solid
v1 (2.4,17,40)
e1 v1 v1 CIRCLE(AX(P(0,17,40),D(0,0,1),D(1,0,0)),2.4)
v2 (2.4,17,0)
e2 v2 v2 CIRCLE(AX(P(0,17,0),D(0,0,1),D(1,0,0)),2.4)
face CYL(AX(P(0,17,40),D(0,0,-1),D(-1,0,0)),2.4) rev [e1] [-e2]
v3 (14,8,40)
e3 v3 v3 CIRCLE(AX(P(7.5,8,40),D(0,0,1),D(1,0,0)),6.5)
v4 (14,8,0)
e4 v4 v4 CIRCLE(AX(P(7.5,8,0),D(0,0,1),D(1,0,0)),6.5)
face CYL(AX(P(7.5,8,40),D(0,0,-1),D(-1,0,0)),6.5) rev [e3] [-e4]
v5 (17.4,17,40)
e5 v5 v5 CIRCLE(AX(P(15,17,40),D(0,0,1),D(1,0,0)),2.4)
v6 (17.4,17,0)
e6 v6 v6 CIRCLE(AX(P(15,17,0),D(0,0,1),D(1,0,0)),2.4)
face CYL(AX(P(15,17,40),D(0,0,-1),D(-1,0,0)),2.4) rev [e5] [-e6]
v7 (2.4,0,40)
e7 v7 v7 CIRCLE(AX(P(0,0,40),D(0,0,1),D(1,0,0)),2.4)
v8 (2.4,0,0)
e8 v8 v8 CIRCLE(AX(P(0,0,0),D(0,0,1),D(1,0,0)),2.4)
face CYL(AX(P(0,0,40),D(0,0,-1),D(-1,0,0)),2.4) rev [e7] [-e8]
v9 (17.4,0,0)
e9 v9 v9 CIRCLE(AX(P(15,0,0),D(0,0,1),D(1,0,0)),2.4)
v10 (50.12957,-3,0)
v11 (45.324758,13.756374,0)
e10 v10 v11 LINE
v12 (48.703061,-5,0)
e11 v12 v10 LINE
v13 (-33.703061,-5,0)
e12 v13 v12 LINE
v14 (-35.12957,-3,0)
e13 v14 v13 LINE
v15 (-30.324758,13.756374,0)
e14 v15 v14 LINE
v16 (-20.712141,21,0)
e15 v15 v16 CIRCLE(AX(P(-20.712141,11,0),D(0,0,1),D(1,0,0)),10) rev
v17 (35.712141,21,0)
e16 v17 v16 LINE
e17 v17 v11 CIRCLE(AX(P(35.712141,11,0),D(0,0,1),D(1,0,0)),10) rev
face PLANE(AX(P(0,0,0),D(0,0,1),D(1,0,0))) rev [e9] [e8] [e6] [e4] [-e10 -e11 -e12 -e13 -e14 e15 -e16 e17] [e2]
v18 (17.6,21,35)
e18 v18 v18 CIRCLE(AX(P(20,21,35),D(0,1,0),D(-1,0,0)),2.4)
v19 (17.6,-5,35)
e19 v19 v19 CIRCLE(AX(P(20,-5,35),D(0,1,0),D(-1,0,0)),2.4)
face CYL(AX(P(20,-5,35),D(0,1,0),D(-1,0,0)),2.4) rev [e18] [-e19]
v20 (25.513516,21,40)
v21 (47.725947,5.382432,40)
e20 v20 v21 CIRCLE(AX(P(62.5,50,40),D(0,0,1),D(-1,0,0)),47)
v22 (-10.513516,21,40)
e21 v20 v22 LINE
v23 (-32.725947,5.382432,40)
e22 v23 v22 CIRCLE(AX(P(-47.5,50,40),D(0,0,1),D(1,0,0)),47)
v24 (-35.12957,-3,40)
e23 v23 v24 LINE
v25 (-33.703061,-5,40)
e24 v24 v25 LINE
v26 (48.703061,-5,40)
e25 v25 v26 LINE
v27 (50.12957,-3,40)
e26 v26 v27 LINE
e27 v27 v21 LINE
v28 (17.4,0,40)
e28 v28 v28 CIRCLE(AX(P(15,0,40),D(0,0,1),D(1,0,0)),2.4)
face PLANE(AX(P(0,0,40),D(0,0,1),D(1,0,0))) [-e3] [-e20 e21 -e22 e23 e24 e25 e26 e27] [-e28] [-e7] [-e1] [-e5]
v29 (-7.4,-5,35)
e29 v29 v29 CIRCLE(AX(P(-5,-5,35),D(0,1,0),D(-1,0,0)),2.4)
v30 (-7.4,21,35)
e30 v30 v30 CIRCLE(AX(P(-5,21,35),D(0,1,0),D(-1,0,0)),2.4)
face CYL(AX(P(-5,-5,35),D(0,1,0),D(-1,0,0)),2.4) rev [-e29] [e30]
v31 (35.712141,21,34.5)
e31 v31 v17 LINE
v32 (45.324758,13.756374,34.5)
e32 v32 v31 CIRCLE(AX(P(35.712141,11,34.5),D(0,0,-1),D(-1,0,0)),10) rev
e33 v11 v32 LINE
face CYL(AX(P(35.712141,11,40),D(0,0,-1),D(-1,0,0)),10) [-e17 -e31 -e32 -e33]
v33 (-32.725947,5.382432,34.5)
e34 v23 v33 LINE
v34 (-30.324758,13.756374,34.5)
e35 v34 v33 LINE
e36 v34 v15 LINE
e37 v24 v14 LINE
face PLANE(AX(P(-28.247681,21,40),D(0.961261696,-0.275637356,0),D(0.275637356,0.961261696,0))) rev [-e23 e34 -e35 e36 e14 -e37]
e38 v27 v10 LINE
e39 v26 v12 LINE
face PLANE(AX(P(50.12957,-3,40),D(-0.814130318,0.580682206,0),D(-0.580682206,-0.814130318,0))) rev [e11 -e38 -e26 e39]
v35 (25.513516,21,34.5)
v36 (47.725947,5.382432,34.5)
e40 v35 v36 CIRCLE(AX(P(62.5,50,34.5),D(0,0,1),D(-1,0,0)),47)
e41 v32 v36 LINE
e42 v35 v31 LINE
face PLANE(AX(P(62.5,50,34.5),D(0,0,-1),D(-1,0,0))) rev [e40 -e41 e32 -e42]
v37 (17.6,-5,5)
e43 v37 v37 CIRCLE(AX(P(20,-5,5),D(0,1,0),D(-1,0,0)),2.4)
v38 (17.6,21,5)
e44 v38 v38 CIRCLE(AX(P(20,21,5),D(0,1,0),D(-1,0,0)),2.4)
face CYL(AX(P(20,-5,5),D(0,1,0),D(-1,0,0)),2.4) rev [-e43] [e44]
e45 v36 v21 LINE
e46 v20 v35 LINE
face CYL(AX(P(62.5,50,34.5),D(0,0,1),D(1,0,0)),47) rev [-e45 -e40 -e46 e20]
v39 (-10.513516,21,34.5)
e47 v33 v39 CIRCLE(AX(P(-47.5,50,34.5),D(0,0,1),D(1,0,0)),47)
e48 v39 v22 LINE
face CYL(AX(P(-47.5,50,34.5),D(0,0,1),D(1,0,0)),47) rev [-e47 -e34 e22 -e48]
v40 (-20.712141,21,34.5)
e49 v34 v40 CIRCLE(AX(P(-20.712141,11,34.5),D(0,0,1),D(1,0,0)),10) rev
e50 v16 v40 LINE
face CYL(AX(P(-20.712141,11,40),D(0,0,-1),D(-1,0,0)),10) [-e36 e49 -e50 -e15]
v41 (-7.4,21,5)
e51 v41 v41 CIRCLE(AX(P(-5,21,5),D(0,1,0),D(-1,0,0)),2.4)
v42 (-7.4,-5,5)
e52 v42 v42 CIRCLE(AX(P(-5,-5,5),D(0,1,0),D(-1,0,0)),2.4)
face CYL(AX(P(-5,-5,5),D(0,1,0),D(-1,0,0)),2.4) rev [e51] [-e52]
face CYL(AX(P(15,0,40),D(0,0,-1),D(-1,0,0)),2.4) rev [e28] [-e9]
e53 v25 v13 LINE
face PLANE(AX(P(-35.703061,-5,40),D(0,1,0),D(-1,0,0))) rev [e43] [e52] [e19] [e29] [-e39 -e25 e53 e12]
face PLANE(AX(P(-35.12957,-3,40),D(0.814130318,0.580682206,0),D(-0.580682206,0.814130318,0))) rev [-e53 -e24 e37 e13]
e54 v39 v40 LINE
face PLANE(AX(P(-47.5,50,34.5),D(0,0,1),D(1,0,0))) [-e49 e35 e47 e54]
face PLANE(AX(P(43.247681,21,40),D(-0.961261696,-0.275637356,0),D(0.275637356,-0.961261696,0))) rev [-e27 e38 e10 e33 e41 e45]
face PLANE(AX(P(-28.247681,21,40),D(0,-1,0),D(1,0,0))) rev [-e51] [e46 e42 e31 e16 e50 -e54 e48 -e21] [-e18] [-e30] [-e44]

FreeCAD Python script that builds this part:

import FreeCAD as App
import Part
import Sketcher
Q = App.Units.Quantity


def edges_at(feature, points):
    """Names of the edges that pass closest to the given points."""
    edges = feature.Shape.Edges
    near = lambda p: min(range(len(edges)), key=lambda i: edges[i].distToShape(Part.Vertex(*p))[0])
    return sorted({f"Edge{near(p) + 1}" for p in points})

doc = App.newDocument("Part")
body = doc.addObject("PartDesign::Body", "Body")

# Sketch on XY plane
sketch1 = doc.addObject("Sketcher::SketchObject", "Sketch")
body.addObject(sketch1)
sketch1.AttachmentSupport = (doc.XY_Plane, [""])
sketch1.MapMode = "FlatFace"
sketch1.addGeometry(Part.LineSegment(App.Vector(-35.703061, -5, 0), App.Vector(50.703061, -5, 0)), False)
sketch1.addGeometry(Part.LineSegment(App.Vector(50.703061, -5, 0), App.Vector(43.247681, 21, 0)), False)
sketch1.addGeometry(Part.LineSegment(App.Vector(43.247681, 21, 0), App.Vector(-28.247681, 21, 0)), False)
sketch1.addGeometry(Part.LineSegment(App.Vector(-28.247681, 21, 0), App.Vector(-35.703061, -5, 0)), False)
sketch1.addGeometry(Part.Circle(App.Vector(0, 0, 0), App.Vector(0, 0, 1), 2.4), False)
sketch1.addGeometry(Part.Circle(App.Vector(15, 0, 0), App.Vector(0, 0, 1), 2.4), False)
sketch1.addGeometry(Part.Circle(App.Vector(7.5, 8, 0), App.Vector(0, 0, 1), 6.5), False)
sketch1.addGeometry(Part.Circle(App.Vector(0, 17, 0), App.Vector(0, 0, 1), 2.4), False)
sketch1.addGeometry(Part.Circle(App.Vector(15, 17, 0), App.Vector(0, 0, 1), 2.4), False)
sketch1.addConstraint(Sketcher.Constraint("Coincident", 0, 2, 1, 1))
sketch1.addConstraint(Sketcher.Constraint("Coincident", 1, 2, 2, 1))
sketch1.addConstraint(Sketcher.Constraint("Coincident", 2, 2, 3, 1))
sketch1.addConstraint(Sketcher.Constraint("Coincident", 3, 2, 0, 1))
sketch1.addConstraint(Sketcher.Constraint("Horizontal", 0))
sketch1.addConstraint(Sketcher.Constraint("Horizontal", 2))
sketch1.addConstraint(Sketcher.Constraint("Coincident", 4, 3, -1, 1))
sketch1.addConstraint(Sketcher.Constraint("Equal", 4, 5))
sketch1.addConstraint(Sketcher.Constraint("Equal", 5, 7))
sketch1.addConstraint(Sketcher.Constraint("Equal", 7, 8))
sketch1.addConstraint(Sketcher.Constraint("PointOnObject", 5, 3, -1))
sketch1.addConstraint(Sketcher.Constraint("PointOnObject", 7, 3, -2))
sketch1.addConstraint(Sketcher.Constraint("Horizontal", 7, 3, 8, 3))
sketch1.addConstraint(Sketcher.Constraint("Vertical", 5, 3, 8, 3))
sketch1.addConstraint(Sketcher.Constraint("Equal", 1, 3))
sketch1.addConstraint(Sketcher.Constraint("Diameter", 6, Q("13 mm")))
sketch1.addConstraint(Sketcher.Constraint("Diameter", 4, Q("4.8 mm")))
sketch1.addConstraint(Sketcher.Constraint("Angle", 1, Q("106 deg")))
sketch1.addConstraint(Sketcher.Constraint("DistanceX", -1, 1, 5, 3, Q("15 mm")))
sketch1.addConstraint(Sketcher.Constraint("DistanceY", -1, 1, 6, 3, Q("8 mm")))
sketch1.addConstraint(Sketcher.Constraint("DistanceY", -1, 1, 7, 3, Q("17 mm")))
sketch1.addConstraint(Sketcher.Constraint("DistanceY", 0, 2, -1, 1, Q("5 mm")))
sketch1.addConstraint(Sketcher.Constraint("DistanceY", -1, 1, 1, 2, Q("21 mm")))
sketch1.addConstraint(Sketcher.Constraint("DistanceX", -1, 1, 6, 3, Q("7.5 mm")))
sketch1.addConstraint(Sketcher.Constraint("DistanceX", 0, 1, 0, 2, Q("86.406122 mm")))
sketch1.addConstraint(Sketcher.Constraint("DistanceX", -1, 1, 0, 2, Q("50.703061 mm")))
pad1 = doc.addObject("PartDesign::Pad", "Pad")
body.addObject(pad1)
pad1.Profile = sketch1
pad1.Length = 40
doc.recompute()

fillet = doc.addObject("PartDesign::Fillet", "Fillet")
body.addObject(fillet)
fillet.Base = (pad1, edges_at(pad1, [(-28.248, 21, 20), (43.248, 21, 20)]))
fillet.Radius = 10

# Sketch on XZ plane
sketch2 = doc.addObject("Sketcher::SketchObject", "Sketch001")
body.addObject(sketch2)
sketch2.AttachmentSupport = (doc.XZ_Plane, [""])
sketch2.MapMode = "FlatFace"
sketch2.AttachmentOffset = App.Placement(App.Vector(0, 0, -21), App.Rotation())
sketch2.addGeometry(Part.Circle(App.Vector(-5, 5, 0), App.Vector(0, 0, 1), 2.4), False)
sketch2.addGeometry(Part.Circle(App.Vector(20, 5, 0), App.Vector(0, 0, 1), 2.4), False)
sketch2.addGeometry(Part.Circle(App.Vector(-5, 35, 0), App.Vector(0, 0, 1), 2.4), False)
sketch2.addGeometry(Part.Circle(App.Vector(20, 35, 0), App.Vector(0, 0, 1), 2.4), False)
sketch2.addConstraint(Sketcher.Constraint("Equal", 0, 1))
sketch2.addConstraint(Sketcher.Constraint("Equal", 1, 2))
sketch2.addConstraint(Sketcher.Constraint("Equal", 2, 3))
sketch2.addConstraint(Sketcher.Constraint("Horizontal", 0, 3, 1, 3))
sketch2.addConstraint(Sketcher.Constraint("Horizontal", 2, 3, 3, 3))
sketch2.addConstraint(Sketcher.Constraint("Vertical", 0, 3, 2, 3))
sketch2.addConstraint(Sketcher.Constraint("Vertical", 1, 3, 3, 3))
sketch2.addConstraint(Sketcher.Constraint("Diameter", 0, Q("4.8 mm")))
sketch2.addConstraint(Sketcher.Constraint("DistanceX", 0, 3, -1, 1, Q("5 mm")))
sketch2.addConstraint(Sketcher.Constraint("DistanceY", -1, 1, 0, 3, Q("5 mm")))
sketch2.addConstraint(Sketcher.Constraint("DistanceX", -1, 1, 1, 3, Q("20 mm")))
sketch2.addConstraint(Sketcher.Constraint("DistanceY", -1, 1, 2, 3, Q("35 mm")))
pocket1 = doc.addObject("PartDesign::Pocket", "Pocket")
body.addObject(pocket1)
pocket1.Profile = sketch2
pocket1.Type = "ThroughAll"
pocket1.Reversed = True

# Sketch on XY plane
sketch3 = doc.addObject("Sketcher::SketchObject", "Sketch002")
body.addObject(sketch3)
sketch3.AttachmentSupport = (doc.XY_Plane, [""])
sketch3.MapMode = "FlatFace"
sketch3.AttachmentOffset = App.Placement(App.Vector(0, 0, 40), App.Rotation())
sketch3.addGeometry(Part.Circle(App.Vector(-47.5, 50, 0), App.Vector(0, 0, 1), 47), False)
sketch3.addGeometry(Part.Circle(App.Vector(62.5, 50, 0), App.Vector(0, 0, 1), 47), False)
sketch3.addConstraint(Sketcher.Constraint("Equal", 0, 1))
sketch3.addConstraint(Sketcher.Constraint("Horizontal", 0, 3, 1, 3))
sketch3.addConstraint(Sketcher.Constraint("Diameter", 0, Q("94 mm")))
sketch3.addConstraint(Sketcher.Constraint("DistanceY", -1, 1, 0, 3, Q("50 mm")))
sketch3.addConstraint(Sketcher.Constraint("DistanceX", 0, 3, 1, 3, Q("110 mm")))
sketch3.addConstraint(Sketcher.Constraint("DistanceX", 0, 3, -1, 1, Q("47.5 mm")))
pocket2 = doc.addObject("PartDesign::Pocket", "Pocket001")
body.addObject(pocket2)
pocket2.Profile = sketch3
pocket2.Length = 5.5

# Sketch on XY plane
sketch4 = doc.addObject("Sketcher::SketchObject", "Sketch003")
body.addObject(sketch4)
sketch4.AttachmentSupport = (doc.XY_Plane, [""])
sketch4.MapMode = "FlatFace"
sketch4.addGeometry(Part.LineSegment(App.Vector(50.703061, -5, 0), App.Vector(48.703061, -5, 0)), False)
sketch4.addGeometry(Part.LineSegment(App.Vector(48.703061, -5, 0), App.Vector(50.12957, -3, 0)), False)
sketch4.addGeometry(Part.LineSegment(App.Vector(50.12957, -3, 0), App.Vector(50.703061, -5, 0)), False)
sketch4.addGeometry(Part.LineSegment(App.Vector(-35.12957, -3, 0), App.Vector(-33.703061, -5, 0)), False)
sketch4.addGeometry(Part.LineSegment(App.Vector(-33.703061, -5, 0), App.Vector(-35.703061, -5, 0)), False)
sketch4.addGeometry(Part.LineSegment(App.Vector(-35.703061, -5, 0), App.Vector(-35.12957, -3, 0)), False)
sketch4.addConstraint(Sketcher.Constraint("Coincident", 0, 2, 1, 1))
sketch4.addConstraint(Sketcher.Constraint("Coincident", 1, 2, 2, 1))
sketch4.addConstraint(Sketcher.Constraint("Coincident", 2, 2, 0, 1))
sketch4.addConstraint(Sketcher.Constraint("Coincident", 3, 2, 4, 1))
sketch4.addConstraint(Sketcher.Constraint("Coincident", 4, 2, 5, 1))
sketch4.addConstraint(Sketcher.Constraint("Coincident", 5, 2, 3, 1))
sketch4.addConstraint(Sketcher.Constraint("Horizontal", 0))
sketch4.addConstraint(Sketcher.Constraint("Horizontal", 4))
sketch4.addConstraint(Sketcher.Constraint("Horizontal", 2, 2, 3, 2))
sketch4.addConstraint(Sketcher.Constraint("Horizontal", 1, 2, 5, 2))
sketch4.addConstraint(Sketcher.Constraint("Equal", 0, 4))
sketch4.addConstraint(Sketcher.Constraint("Equal", 1, 3))
sketch4.addConstraint(Sketcher.Constraint("DistanceX", 0, 2, 0, 1, Q("2 mm")))
sketch4.addConstraint(Sketcher.Constraint("Angle", 2, Q("-74 deg")))
sketch4.addConstraint(Sketcher.Constraint("DistanceY", 0, 2, -1, 1, Q("5 mm")))
sketch4.addConstraint(Sketcher.Constraint("DistanceY", 1, 2, -1, 1, Q("3 mm")))
sketch4.addConstraint(Sketcher.Constraint("DistanceX", -1, 1, 0, 2, Q("48.703061 mm")))
sketch4.addConstraint(Sketcher.Constraint("DistanceX", 3, 2, -1, 1, Q("33.703061 mm")))
pocket3 = doc.addObject("PartDesign::Pocket", "Pocket002")
body.addObject(pocket3)
pocket3.Profile = sketch4
pocket3.Type = "ThroughAll"
pocket3.Reversed = True

doc.recompute()
